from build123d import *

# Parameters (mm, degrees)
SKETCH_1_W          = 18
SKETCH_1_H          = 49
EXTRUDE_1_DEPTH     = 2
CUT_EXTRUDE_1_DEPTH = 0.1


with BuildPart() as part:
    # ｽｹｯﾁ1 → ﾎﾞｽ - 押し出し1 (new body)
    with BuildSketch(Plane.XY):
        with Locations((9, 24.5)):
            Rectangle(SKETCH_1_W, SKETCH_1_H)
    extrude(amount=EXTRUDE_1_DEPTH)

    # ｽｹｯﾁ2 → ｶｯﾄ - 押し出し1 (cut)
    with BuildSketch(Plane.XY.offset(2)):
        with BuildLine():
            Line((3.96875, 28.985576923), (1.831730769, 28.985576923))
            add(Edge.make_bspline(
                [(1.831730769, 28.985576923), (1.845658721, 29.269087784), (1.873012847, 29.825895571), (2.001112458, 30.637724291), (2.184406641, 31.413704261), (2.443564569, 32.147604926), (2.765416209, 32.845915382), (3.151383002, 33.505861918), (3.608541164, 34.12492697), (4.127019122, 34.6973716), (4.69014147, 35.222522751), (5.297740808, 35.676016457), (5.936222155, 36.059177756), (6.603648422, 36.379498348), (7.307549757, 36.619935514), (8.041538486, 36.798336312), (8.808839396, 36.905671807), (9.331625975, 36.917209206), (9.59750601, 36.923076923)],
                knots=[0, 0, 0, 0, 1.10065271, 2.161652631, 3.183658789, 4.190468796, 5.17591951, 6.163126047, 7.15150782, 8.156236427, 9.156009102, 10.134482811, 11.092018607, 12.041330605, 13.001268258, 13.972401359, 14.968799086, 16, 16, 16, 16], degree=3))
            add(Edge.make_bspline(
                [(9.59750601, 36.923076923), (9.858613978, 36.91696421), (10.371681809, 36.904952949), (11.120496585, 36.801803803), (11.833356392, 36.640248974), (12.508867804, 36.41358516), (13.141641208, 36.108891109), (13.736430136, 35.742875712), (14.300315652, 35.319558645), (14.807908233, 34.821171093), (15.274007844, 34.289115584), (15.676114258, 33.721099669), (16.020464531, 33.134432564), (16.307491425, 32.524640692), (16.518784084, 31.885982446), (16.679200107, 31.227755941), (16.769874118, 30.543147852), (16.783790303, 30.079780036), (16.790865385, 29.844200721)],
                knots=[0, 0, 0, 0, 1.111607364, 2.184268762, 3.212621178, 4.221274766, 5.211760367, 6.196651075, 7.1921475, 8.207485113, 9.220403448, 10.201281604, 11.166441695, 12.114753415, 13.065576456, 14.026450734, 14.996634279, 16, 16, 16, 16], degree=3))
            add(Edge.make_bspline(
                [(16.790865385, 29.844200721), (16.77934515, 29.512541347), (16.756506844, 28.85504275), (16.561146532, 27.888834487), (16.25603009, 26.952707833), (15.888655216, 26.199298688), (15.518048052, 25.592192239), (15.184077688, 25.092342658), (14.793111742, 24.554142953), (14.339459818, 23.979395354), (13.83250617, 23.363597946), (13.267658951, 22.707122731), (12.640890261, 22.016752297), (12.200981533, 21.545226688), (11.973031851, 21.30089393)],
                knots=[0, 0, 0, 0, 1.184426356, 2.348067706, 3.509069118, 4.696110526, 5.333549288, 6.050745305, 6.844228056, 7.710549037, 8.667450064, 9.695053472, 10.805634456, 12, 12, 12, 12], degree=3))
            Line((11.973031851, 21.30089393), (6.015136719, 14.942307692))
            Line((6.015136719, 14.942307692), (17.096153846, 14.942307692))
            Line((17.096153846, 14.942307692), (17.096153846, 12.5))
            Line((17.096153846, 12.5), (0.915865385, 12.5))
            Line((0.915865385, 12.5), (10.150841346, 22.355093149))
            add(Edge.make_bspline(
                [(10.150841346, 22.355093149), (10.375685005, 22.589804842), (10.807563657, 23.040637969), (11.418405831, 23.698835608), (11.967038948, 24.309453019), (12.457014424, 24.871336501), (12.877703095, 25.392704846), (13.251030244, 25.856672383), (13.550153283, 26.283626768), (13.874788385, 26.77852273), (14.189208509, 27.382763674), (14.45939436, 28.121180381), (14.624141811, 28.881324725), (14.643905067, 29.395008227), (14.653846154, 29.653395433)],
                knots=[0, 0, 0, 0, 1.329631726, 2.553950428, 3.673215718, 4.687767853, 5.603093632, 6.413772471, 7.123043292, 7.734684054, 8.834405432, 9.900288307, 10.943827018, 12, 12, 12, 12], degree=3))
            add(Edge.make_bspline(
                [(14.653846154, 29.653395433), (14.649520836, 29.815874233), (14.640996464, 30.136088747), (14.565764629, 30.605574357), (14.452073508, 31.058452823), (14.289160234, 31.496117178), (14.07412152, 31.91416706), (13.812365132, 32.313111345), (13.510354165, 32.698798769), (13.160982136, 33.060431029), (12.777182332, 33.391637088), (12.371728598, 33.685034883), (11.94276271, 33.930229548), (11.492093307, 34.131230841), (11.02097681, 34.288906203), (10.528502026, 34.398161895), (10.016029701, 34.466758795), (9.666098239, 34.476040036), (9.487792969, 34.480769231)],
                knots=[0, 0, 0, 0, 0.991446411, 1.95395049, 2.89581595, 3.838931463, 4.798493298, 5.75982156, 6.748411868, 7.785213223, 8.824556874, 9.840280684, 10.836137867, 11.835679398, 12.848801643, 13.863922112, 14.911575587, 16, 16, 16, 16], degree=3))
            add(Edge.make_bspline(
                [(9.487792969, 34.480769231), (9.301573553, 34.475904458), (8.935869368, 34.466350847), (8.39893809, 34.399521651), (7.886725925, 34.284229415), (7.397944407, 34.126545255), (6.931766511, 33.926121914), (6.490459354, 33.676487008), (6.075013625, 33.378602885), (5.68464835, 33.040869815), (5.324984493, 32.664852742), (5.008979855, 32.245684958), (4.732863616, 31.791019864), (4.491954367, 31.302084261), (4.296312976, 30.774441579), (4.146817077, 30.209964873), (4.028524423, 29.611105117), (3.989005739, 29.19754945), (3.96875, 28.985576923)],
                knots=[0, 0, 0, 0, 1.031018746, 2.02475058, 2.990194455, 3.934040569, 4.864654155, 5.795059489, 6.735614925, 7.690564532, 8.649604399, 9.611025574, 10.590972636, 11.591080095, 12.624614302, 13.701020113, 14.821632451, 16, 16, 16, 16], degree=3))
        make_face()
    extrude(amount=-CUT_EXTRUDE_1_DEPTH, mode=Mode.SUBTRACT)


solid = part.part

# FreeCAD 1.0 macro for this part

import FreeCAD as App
import Part
import Sketcher

V = App.Vector
Q = App.Units.Quantity

doc = App.newDocument("Part")
body = doc.addObject("PartDesign::Body", "Body")

# Sketch on XY plane
sketch1 = doc.addObject("Sketcher::SketchObject", "Sketch")
body.addObject(sketch1)
sketch1.AttachmentSupport = (doc.XY_Plane, [""])
sketch1.MapMode = "FlatFace"
sketch1.addGeometry([
    Part.LineSegment(V(0, 49, 0), V(0, 0, 0)),
    Part.LineSegment(V(0, 0, 0), V(18, 0, 0)),
    Part.LineSegment(V(18, 0, 0), V(18, 49, 0)),
    Part.LineSegment(V(18, 49, 0), V(0, 49, 0)),
], False)
sketch1.addConstraint([
    Sketcher.Constraint("Coincident", 0, 2, 1, 1),
    Sketcher.Constraint("Coincident", 1, 2, 2, 1),
    Sketcher.Constraint("Coincident", 2, 2, 3, 1),
    Sketcher.Constraint("Coincident", 3, 2, 0, 1),
    Sketcher.Constraint("Vertical", 0),
    Sketcher.Constraint("Horizontal", 1),
    Sketcher.Constraint("Vertical", 2),
    Sketcher.Constraint("Horizontal", 3),
    Sketcher.Constraint("Coincident", 0, 2, -1, 1),
    Sketcher.Constraint("DistanceX", 1, 1, 1, 2, Q("18 mm")),
    Sketcher.Constraint("DistanceY", 0, 2, 0, 1, Q("49 mm")),
])
pad1 = doc.addObject("PartDesign::Pad", "Pad")
body.addObject(pad1)
pad1.Profile = sketch1
pad1.Length = 2

# Sketch on XY plane
sketch2 = doc.addObject("Sketcher::SketchObject", "Sketch001")
body.addObject(sketch2)
sketch2.AttachmentSupport = (doc.XY_Plane, [""])
sketch2.MapMode = "FlatFace"
sketch2.AttachmentOffset = App.Placement(V(0, 0, 2), App.Rotation())
sketch2.addGeometry([
    Part.LineSegment(V(1.831731, 28.985577, 0), V(3.96875, 28.985577, 0)),  # 0
    Part.BSplineCurve([V(9.487793, 34.480769, 0), V(9.301574, 34.475904, 0), V(8.935869, 34.466351, 0), V(8.398938, 34.399522, 0), V(7.886726, 34.284229, 0), V(7.397944, 34.126545, 0), V(6.931767, 33.926122, 0), V(6.490459, 33.676487, 0), V(6.075014, 33.378603, 0), V(5.684648, 33.04087, 0), V(5.324984, 32.664853, 0), V(5.00898, 32.245685, 0), V(4.732864, 31.79102, 0), V(4.491954, 31.302084, 0), V(4.296313, 30.774442, 0), V(4.146817, 30.209965, 0), V(4.028524, 29.611105, 0), V(3.989006, 29.197549, 0), V(3.96875, 28.985577, 0)], [4, 1, 1, 1, 1, 1, 1, 1, 1, 1, 1, 1, 1, 1, 1, 1, 4], [0, 1.031018746, 2.02475058, 2.990194455, 3.934040569, 4.864654155, 5.795059489, 6.735614925, 7.690564532, 8.649604399, 9.611025574, 10.590972636, 11.591080095, 12.624614302, 13.701020113, 14.821632451, 16], False, 3, [1, 1, 1, 1, 1, 1, 1, 1, 1, 1, 1, 1, 1, 1, 1, 1, 1, 1, 1], False),  # 1
    Part.BSplineCurve([V(14.653846, 29.653395, 0), V(14.649521, 29.815874, 0), V(14.640996, 30.136089, 0), V(14.565765, 30.605574, 0), V(14.452074, 31.058453, 0), V(14.28916, 31.496117, 0), V(14.074122, 31.914167, 0), V(13.812365, 32.313111, 0), V(13.510354, 32.698799, 0), V(13.160982, 33.060431, 0), V(12.777182, 33.391637, 0), V(12.371729, 33.685035, 0), V(11.942763, 33.93023, 0), V(11.492093, 34.131231, 0), V(11.020977, 34.288906, 0), V(10.528502, 34.398162, 0), V(10.01603, 34.466759, 0), V(9.666098, 34.47604, 0), V(9.487793, 34.480769, 0)], [4, 1, 1, 1, 1, 1, 1, 1, 1, 1, 1, 1, 1, 1, 1, 1, 4], [0, 0.991446411, 1.95395049, 2.89581595, 3.838931463, 4.798493298, 5.75982156, 6.748411868, 7.785213223, 8.824556874, 9.840280684, 10.836137867, 11.835679398, 12.848801643, 13.863922112, 14.911575587, 16], False, 3, [1, 1, 1, 1, 1, 1, 1, 1, 1, 1, 1, 1, 1, 1, 1, 1, 1, 1, 1], False),  # 2
    Part.BSplineCurve([V(10.150841, 22.355093, 0), V(10.375685, 22.589805, 0), V(10.807564, 23.040638, 0), V(11.418406, 23.698836, 0), V(11.967039, 24.309453, 0), V(12.457014, 24.871337, 0), V(12.877703, 25.392705, 0), V(13.25103, 25.856672, 0), V(13.550153, 26.283627, 0), V(13.874788, 26.778523, 0), V(14.189209, 27.382764, 0), V(14.459394, 28.12118, 0), V(14.624142, 28.881325, 0), V(14.643905, 29.395008, 0), V(14.653846, 29.653395, 0)], [4, 1, 1, 1, 1, 1, 1, 1, 1, 1, 1, 1, 4], [0, 1.329631726, 2.553950428, 3.673215718, 4.687767853, 5.603093632, 6.413772471, 7.123043292, 7.734684054, 8.834405432, 9.900288307, 10.943827018, 12], False, 3, [1, 1, 1, 1, 1, 1, 1, 1, 1, 1, 1, 1, 1, 1, 1], False),  # 3
    Part.LineSegment(V(10.150841, 22.355093, 0), V(0.915865, 12.5, 0)),  # 4
    Part.LineSegment(V(0.915865, 12.5, 0), V(17.096154, 12.5, 0)),  # 5
    Part.LineSegment(V(17.096154, 12.5, 0), V(17.096154, 14.942308, 0)),  # 6
    Part.LineSegment(V(17.096154, 14.942308, 0), V(6.015137, 14.942308, 0)),  # 7
    Part.LineSegment(V(6.015137, 14.942308, 0), V(11.973032, 21.300894, 0)),  # 8
    Part.BSplineCurve([V(16.790865, 29.844201, 0), V(16.779345, 29.512541, 0), V(16.756507, 28.855043, 0), V(16.561147, 27.888834, 0), V(16.25603, 26.952708, 0), V(15.888655, 26.199299, 0), V(15.518048, 25.592192, 0), V(15.184078, 25.092343, 0), V(14.793112, 24.554143, 0), V(14.33946, 23.979395, 0), V(13.832506, 23.363598, 0), V(13.267659, 22.707123, 0), V(12.64089, 22.016752, 0), V(12.200982, 21.545227, 0), V(11.973032, 21.300894, 0)], [4, 1, 1, 1, 1, 1, 1, 1, 1, 1, 1, 1, 4], [0, 1.184426356, 2.348067706, 3.509069118, 4.696110526, 5.333549288, 6.050745305, 6.844228056, 7.710549037, 8.667450064, 9.695053472, 10.805634456, 12], False, 3, [1, 1, 1, 1, 1, 1, 1, 1, 1, 1, 1, 1, 1, 1, 1], False),  # 9
    Part.BSplineCurve([V(9.597506, 36.923077, 0), V(9.858614, 36.916964, 0), V(10.371682, 36.904953, 0), V(11.120497, 36.801804, 0), V(11.833356, 36.640249, 0), V(12.508868, 36.413585, 0), V(13.141641, 36.108891, 0), V(13.73643, 35.742876, 0), V(14.300316, 35.319559, 0), V(14.807908, 34.821171, 0), V(15.274008, 34.289116, 0), V(15.676114, 33.7211, 0), V(16.020465, 33.134433, 0), V(16.307491, 32.524641, 0), V(16.518784, 31.885982, 0), V(16.6792, 31.227756, 0), V(16.769874, 30.543148, 0), V(16.78379, 30.07978, 0), V(16.790865, 29.844201, 0)], [4, 1, 1, 1, 1, 1, 1, 1, 1, 1, 1, 1, 1, 1, 1, 1, 4], [0, 1.111607364, 2.184268762, 3.212621178, 4.221274766, 5.211760367, 6.196651075, 7.1921475, 8.207485113, 9.220403448, 10.201281604, 11.166441695, 12.114753415, 13.065576456, 14.026450734, 14.996634279, 16], False, 3, [1, 1, 1, 1, 1, 1, 1, 1, 1, 1, 1, 1, 1, 1, 1, 1, 1, 1, 1], False),  # 10
    Part.BSplineCurve([V(1.831731, 28.985577, 0), V(1.845659, 29.269088, 0), V(1.873013, 29.825896, 0), V(2.001112, 30.637724, 0), V(2.184407, 31.413704, 0), V(2.443565, 32.147605, 0), V(2.765416, 32.845915, 0), V(3.151383, 33.505862, 0), V(3.608541, 34.124927, 0), V(4.127019, 34.697372, 0), V(4.690141, 35.222523, 0), V(5.297741, 35.676016, 0), V(5.936222, 36.059178, 0), V(6.603648, 36.379498, 0), V(7.30755, 36.619936, 0), V(8.041538, 36.798336, 0), V(8.808839, 36.905672, 0), V(9.331626, 36.917209, 0), V(9.597506, 36.923077, 0)], [4, 1, 1, 1, 1, 1, 1, 1, 1, 1, 1, 1, 1, 1, 1, 1, 4], [0, 1.10065271, 2.161652631, 3.183658789, 4.190468796, 5.17591951, 6.163126047, 7.15150782, 8.156236427, 9.156009102, 10.134482811, 11.092018607, 12.041330605, 13.001268258, 13.972401359, 14.968799086, 16], False, 3, [1, 1, 1, 1, 1, 1, 1, 1, 1, 1, 1, 1, 1, 1, 1, 1, 1, 1, 1], False),  # 11
], False)
sketch2.addConstraint([
    Sketcher.Constraint("Block", 1),
    Sketcher.Constraint("Block", 2),
    Sketcher.Constraint("Block", 3),
    Sketcher.Constraint("Block", 9),
    Sketcher.Constraint("Block", 10),
    Sketcher.Constraint("Block", 11),
    Sketcher.Constraint("Coincident", 0, 2, 1, 2),
    Sketcher.Constraint("Coincident", 3, 1, 4, 1),
    Sketcher.Constraint("Coincident", 4, 2, 5, 1),
    Sketcher.Constraint("Coincident", 5, 2, 6, 1),
    Sketcher.Constraint("Coincident", 6, 2, 7, 1),
    Sketcher.Constraint("Coincident", 7, 2, 8, 1),
    Sketcher.Constraint("Coincident", 8, 2, 9, 2),
    Sketcher.Constraint("Coincident", 11, 1, 0, 1),
    Sketcher.Constraint("Horizontal", 5),
    Sketcher.Constraint("Vertical", 6),
    Sketcher.Constraint("Horizontal", 7),
    Sketcher.Constraint("DistanceY", -1, 1, 4, 2, Q("12.5 mm")),
    Sketcher.Constraint("DistanceX", 5, 1, 5, 2, Q("16.180288 mm")),
    Sketcher.Constraint("DistanceX", 7, 2, 7, 1, Q("11.081017 mm")),
    Sketcher.Constraint("DistanceY", 6, 1, 6, 2, Q("2.442308 mm")),
    Sketcher.Constraint("DistanceX", 8, 2, 6, 2, Q("5.123122 mm")),
])
pocket1 = doc.addObject("PartDesign::Pocket", "Pocket")
body.addObject(pocket1)
pocket1.Profile = sketch2
pocket1.Length = 0.1

doc.recompute()
